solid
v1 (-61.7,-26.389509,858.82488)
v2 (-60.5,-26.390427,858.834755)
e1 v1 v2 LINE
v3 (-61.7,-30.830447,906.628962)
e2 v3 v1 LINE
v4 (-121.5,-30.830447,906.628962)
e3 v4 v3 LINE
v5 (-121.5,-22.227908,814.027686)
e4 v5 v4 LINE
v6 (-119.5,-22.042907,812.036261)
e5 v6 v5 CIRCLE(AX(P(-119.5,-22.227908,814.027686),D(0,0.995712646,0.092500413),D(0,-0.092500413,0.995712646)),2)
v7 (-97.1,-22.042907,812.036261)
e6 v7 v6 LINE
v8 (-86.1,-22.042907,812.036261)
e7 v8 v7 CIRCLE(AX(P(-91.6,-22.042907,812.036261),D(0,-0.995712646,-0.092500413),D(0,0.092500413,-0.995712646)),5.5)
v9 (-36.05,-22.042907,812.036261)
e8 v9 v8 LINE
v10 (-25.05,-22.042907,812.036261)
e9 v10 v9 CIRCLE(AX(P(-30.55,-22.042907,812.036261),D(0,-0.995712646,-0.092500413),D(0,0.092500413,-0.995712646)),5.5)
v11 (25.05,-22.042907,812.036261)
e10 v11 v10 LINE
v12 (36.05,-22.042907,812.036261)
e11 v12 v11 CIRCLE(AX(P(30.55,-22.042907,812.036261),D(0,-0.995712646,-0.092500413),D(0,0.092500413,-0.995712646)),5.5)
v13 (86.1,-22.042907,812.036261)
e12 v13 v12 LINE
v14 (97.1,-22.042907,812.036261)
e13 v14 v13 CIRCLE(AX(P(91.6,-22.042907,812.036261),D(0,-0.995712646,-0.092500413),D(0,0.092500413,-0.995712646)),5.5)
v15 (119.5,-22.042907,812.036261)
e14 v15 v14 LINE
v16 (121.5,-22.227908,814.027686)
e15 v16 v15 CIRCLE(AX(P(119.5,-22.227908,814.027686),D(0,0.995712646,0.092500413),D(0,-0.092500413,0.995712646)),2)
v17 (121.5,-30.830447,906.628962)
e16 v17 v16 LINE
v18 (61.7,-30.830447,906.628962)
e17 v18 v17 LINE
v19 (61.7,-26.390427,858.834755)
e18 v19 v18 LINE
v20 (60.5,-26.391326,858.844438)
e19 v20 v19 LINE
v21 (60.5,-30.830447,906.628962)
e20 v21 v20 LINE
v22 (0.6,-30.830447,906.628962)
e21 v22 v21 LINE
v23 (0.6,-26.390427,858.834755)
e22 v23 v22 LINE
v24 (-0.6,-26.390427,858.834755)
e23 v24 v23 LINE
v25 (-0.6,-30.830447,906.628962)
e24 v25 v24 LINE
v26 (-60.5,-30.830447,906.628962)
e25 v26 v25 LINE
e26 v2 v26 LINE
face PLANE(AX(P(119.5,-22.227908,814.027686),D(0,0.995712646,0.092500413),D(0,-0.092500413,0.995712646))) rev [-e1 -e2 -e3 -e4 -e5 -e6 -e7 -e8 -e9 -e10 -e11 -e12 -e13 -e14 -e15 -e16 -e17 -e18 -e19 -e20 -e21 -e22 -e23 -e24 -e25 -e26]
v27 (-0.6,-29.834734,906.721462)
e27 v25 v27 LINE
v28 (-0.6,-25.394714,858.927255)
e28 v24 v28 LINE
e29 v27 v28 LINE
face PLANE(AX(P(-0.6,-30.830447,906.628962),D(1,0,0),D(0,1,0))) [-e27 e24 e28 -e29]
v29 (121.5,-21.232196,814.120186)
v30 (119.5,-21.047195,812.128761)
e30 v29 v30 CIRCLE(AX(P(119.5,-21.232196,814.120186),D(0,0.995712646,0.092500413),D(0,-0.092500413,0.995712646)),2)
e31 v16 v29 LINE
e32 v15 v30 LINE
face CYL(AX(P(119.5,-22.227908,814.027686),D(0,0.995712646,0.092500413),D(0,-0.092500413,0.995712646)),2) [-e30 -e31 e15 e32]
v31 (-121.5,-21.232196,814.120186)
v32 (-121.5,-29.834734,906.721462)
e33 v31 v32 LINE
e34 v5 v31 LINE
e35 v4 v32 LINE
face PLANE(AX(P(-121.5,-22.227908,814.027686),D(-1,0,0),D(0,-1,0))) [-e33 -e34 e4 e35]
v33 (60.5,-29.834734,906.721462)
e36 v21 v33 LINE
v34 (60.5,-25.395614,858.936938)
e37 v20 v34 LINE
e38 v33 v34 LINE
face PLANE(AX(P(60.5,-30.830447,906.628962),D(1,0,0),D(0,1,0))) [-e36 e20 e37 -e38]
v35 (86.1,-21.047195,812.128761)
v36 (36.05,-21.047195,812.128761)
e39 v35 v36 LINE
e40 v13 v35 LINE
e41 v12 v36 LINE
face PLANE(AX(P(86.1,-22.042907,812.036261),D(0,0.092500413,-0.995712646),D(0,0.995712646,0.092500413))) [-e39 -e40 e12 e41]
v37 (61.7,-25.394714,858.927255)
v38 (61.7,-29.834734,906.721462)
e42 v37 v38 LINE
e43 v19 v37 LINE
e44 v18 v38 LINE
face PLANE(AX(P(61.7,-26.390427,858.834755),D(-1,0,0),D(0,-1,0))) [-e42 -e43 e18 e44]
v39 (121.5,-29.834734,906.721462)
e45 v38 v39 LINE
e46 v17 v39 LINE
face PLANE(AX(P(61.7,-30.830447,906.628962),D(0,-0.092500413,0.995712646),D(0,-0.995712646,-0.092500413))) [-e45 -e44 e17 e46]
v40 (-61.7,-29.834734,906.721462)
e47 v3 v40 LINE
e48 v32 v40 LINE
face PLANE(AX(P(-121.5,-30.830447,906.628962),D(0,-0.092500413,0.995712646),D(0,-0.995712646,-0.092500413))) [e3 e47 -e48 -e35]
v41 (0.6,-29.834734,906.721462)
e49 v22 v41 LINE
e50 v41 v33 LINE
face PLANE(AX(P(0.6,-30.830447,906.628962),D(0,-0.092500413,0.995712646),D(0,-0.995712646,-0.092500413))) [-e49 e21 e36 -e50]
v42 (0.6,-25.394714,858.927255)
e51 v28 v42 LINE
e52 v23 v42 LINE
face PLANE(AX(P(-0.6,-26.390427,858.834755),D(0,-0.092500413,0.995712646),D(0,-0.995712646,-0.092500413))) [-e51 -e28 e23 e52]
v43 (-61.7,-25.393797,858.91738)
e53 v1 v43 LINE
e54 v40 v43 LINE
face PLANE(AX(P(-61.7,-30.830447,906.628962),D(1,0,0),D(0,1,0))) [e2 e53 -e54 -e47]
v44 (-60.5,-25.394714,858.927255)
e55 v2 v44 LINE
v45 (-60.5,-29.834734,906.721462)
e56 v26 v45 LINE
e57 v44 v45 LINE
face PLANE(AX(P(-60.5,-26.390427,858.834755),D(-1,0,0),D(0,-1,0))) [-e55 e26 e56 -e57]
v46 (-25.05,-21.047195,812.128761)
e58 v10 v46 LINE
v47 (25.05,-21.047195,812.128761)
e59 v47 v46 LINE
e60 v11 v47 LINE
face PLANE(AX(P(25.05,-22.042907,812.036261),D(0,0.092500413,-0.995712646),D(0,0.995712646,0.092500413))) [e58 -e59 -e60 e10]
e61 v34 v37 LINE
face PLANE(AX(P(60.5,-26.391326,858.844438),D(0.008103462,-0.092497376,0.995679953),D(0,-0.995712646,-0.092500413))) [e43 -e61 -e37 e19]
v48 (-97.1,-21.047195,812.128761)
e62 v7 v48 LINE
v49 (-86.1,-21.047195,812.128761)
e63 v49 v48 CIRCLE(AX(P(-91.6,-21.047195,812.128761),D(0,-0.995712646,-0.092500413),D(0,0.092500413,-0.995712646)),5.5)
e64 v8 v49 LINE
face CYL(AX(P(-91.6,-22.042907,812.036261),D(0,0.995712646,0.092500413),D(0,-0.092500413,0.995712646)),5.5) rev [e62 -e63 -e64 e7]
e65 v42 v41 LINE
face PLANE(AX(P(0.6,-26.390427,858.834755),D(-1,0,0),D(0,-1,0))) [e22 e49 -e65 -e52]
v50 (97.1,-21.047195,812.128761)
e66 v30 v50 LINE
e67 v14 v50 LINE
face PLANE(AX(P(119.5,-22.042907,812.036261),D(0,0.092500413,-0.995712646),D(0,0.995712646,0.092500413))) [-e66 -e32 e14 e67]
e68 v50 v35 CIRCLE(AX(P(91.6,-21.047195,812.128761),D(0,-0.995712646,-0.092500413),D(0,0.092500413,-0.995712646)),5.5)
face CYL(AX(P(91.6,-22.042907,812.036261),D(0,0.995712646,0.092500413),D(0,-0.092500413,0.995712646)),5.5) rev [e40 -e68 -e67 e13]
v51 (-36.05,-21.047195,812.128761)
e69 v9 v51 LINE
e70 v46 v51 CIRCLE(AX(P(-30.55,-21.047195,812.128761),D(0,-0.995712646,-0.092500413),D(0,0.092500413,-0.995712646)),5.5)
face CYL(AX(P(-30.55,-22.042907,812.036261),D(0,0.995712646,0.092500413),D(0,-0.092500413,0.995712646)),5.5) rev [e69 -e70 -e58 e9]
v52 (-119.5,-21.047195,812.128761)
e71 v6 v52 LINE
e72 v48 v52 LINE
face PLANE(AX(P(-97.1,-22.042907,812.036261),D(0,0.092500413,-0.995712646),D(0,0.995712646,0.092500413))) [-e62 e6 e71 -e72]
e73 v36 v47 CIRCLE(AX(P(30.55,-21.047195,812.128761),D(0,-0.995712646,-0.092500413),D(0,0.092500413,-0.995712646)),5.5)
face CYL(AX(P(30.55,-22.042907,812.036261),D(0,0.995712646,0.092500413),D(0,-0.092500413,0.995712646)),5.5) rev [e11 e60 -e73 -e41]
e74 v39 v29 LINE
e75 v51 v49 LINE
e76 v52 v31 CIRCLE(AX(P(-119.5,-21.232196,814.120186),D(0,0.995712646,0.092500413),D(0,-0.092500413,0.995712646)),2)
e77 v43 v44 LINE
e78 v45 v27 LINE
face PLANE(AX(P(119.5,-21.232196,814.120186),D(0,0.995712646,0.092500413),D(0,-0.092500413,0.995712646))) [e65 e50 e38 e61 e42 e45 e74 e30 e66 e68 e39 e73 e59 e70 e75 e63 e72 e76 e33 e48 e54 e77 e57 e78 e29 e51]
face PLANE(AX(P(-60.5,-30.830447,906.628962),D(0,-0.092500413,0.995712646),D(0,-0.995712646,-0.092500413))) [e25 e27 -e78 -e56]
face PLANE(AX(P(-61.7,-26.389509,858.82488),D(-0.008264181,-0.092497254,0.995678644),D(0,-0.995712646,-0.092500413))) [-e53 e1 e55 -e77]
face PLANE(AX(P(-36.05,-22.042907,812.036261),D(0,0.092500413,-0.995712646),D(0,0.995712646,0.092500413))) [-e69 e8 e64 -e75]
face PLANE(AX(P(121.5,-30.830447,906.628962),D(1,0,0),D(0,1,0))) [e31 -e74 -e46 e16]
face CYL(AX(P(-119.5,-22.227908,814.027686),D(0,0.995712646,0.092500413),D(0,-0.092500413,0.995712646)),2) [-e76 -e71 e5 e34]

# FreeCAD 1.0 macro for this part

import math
import FreeCAD as App
import Part
import Sketcher
Q = App.Units.Quantity

doc = App.newDocument("Part")
body = doc.addObject("PartDesign::Body", "Body")

# Sketch on an angled plane
sketch1 = body.newObject("Sketcher::SketchObject", "Sketch")
sketch1.Placement = App.Placement(App.Vector(0, 53.933062, 5.010312), App.Rotation(App.Vector(-1, 0, 0), App.Vector(0, -0.092500413, 0.995712646), App.Vector(0, 0.995712646, 0.092500413), "ZXY"))
sketch1.addGeometry(Part.LineSegment(App.Vector(-121.5, 905.593752, 0), App.Vector(-121.5, 812.593752, 0)), False)
sketch1.addGeometry(Part.ArcOfCircle(Part.Circle(App.Vector(-119.5, 812.593752, 0), App.Vector(0, 0, 1), 2), math.radians(180), math.radians(270)), False)
sketch1.addGeometry(Part.LineSegment(App.Vector(-119.5, 810.593752, 0), App.Vector(-97.1, 810.593752, 0)), False)
sketch1.addGeometry(Part.ArcOfCircle(Part.Circle(App.Vector(-91.6, 810.593752, 0), App.Vector(0, 0, 1), 5.5), math.radians(0), math.radians(180)), False)
sketch1.addGeometry(Part.LineSegment(App.Vector(-86.1, 810.593752, 0), App.Vector(-36.05, 810.593752, 0)), False)
sketch1.addGeometry(Part.ArcOfCircle(Part.Circle(App.Vector(-30.55, 810.593752, 0), App.Vector(0, 0, 1), 5.5), math.radians(0), math.radians(180)), False)
sketch1.addGeometry(Part.LineSegment(App.Vector(-25.05, 810.593752, 0), App.Vector(25.05, 810.593752, 0)), False)
sketch1.addGeometry(Part.ArcOfCircle(Part.Circle(App.Vector(30.55, 810.593752, 0), App.Vector(0, 0, 1), 5.5), math.radians(0), math.radians(180)), False)
sketch1.addGeometry(Part.LineSegment(App.Vector(36.05, 810.593752, 0), App.Vector(86.1, 810.593752, 0)), False)
sketch1.addGeometry(Part.ArcOfCircle(Part.Circle(App.Vector(91.6, 810.593752, 0), App.Vector(0, 0, 1), 5.5), math.radians(0), math.radians(180)), False)
sketch1.addGeometry(Part.LineSegment(App.Vector(97.1, 810.593752, 0), App.Vector(119.5, 810.593752, 0)), False)
sketch1.addGeometry(Part.ArcOfCircle(Part.Circle(App.Vector(119.5, 812.593752, 0), App.Vector(0, 0, 1), 2), math.radians(-90), math.radians(0)), False)
sketch1.addGeometry(Part.LineSegment(App.Vector(121.5, 812.593752, 0), App.Vector(121.5, 905.593752, 0)), False)
sketch1.addGeometry(Part.LineSegment(App.Vector(121.5, 905.593752, 0), App.Vector(61.7, 905.593752, 0)), False)
sketch1.addGeometry(Part.LineSegment(App.Vector(61.7, 905.593752, 0), App.Vector(61.7, 857.583834, 0)), False)
sketch1.addGeometry(Part.LineSegment(App.Vector(61.7, 857.583834, 0), App.Vector(60.5, 857.593752, 0)), False)
sketch1.addGeometry(Part.LineSegment(App.Vector(60.5, 857.593752, 0), App.Vector(60.5, 905.593752, 0)), False)
sketch1.addGeometry(Part.LineSegment(App.Vector(60.5, 905.593752, 0), App.Vector(0.6, 905.593752, 0)), False)
sketch1.addGeometry(Part.LineSegment(App.Vector(0.6, 905.593752, 0), App.Vector(0.6, 857.593752, 0)), False)
sketch1.addGeometry(Part.LineSegment(App.Vector(0.6, 857.593752, 0), App.Vector(-0.6, 857.593752, 0)), False)
sketch1.addGeometry(Part.LineSegment(App.Vector(-0.6, 857.593752, 0), App.Vector(-0.6, 905.593752, 0)), False)
sketch1.addGeometry(Part.LineSegment(App.Vector(-0.6, 905.593752, 0), App.Vector(-60.5, 905.593752, 0)), False)
sketch1.addGeometry(Part.LineSegment(App.Vector(-60.5, 905.593752, 0), App.Vector(-60.5, 857.603476, 0)), False)
sketch1.addGeometry(Part.LineSegment(App.Vector(-60.5, 857.603476, 0), App.Vector(-61.7, 857.593752, 0)), False)
sketch1.addGeometry(Part.LineSegment(App.Vector(-61.7, 857.593752, 0), App.Vector(-61.7, 905.593752, 0)), False)
sketch1.addGeometry(Part.LineSegment(App.Vector(-61.7, 905.593752, 0), App.Vector(-121.5, 905.593752, 0)), False)
sketch1.addConstraint(Sketcher.Constraint("Coincident", 0, 2, 1, 1))
sketch1.addConstraint(Sketcher.Constraint("Coincident", 1, 2, 2, 1))
sketch1.addConstraint(Sketcher.Constraint("Coincident", 2, 2, 3, 2))
sketch1.addConstraint(Sketcher.Constraint("Coincident", 3, 1, 4, 1))
sketch1.addConstraint(Sketcher.Constraint("Coincident", 4, 2, 5, 2))
sketch1.addConstraint(Sketcher.Constraint("Coincident", 5, 1, 6, 1))
sketch1.addConstraint(Sketcher.Constraint("Coincident", 6, 2, 7, 2))
sketch1.addConstraint(Sketcher.Constraint("Coincident", 7, 1, 8, 1))
sketch1.addConstraint(Sketcher.Constraint("Coincident", 8, 2, 9, 2))
sketch1.addConstraint(Sketcher.Constraint("Coincident", 9, 1, 10, 1))
sketch1.addConstraint(Sketcher.Constraint("Coincident", 10, 2, 11, 1))
sketch1.addConstraint(Sketcher.Constraint("Coincident", 11, 2, 12, 1))
sketch1.addConstraint(Sketcher.Constraint("Coincident", 12, 2, 13, 1))
sketch1.addConstraint(Sketcher.Constraint("Coincident", 13, 2, 14, 1))
sketch1.addConstraint(Sketcher.Constraint("Coincident", 14, 2, 15, 1))
sketch1.addConstraint(Sketcher.Constraint("Coincident", 15, 2, 16, 1))
sketch1.addConstraint(Sketcher.Constraint("Coincident", 16, 2, 17, 1))
sketch1.addConstraint(Sketcher.Constraint("Coincident", 17, 2, 18, 1))
sketch1.addConstraint(Sketcher.Constraint("Coincident", 18, 2, 19, 1))
sketch1.addConstraint(Sketcher.Constraint("Coincident", 19, 2, 20, 1))
sketch1.addConstraint(Sketcher.Constraint("Coincident", 20, 2, 21, 1))
sketch1.addConstraint(Sketcher.Constraint("Coincident", 21, 2, 22, 1))
sketch1.addConstraint(Sketcher.Constraint("Coincident", 22, 2, 23, 1))
sketch1.addConstraint(Sketcher.Constraint("Coincident", 23, 2, 24, 1))
sketch1.addConstraint(Sketcher.Constraint("Coincident", 24, 2, 25, 1))
sketch1.addConstraint(Sketcher.Constraint("Coincident", 25, 2, 0, 1))
sketch1.addConstraint(Sketcher.Constraint("Vertical", 0))
sketch1.addConstraint(Sketcher.Constraint("Horizontal", 2))
sketch1.addConstraint(Sketcher.Constraint("Horizontal", 4))
sketch1.addConstraint(Sketcher.Constraint("Horizontal", 6))
sketch1.addConstraint(Sketcher.Constraint("Horizontal", 8))
sketch1.addConstraint(Sketcher.Constraint("Horizontal", 10))
sketch1.addConstraint(Sketcher.Constraint("Vertical", 12))
sketch1.addConstraint(Sketcher.Constraint("Horizontal", 13))
sketch1.addConstraint(Sketcher.Constraint("Vertical", 14))
sketch1.addConstraint(Sketcher.Constraint("Vertical", 16))
sketch1.addConstraint(Sketcher.Constraint("Horizontal", 17))
sketch1.addConstraint(Sketcher.Constraint("Vertical", 18))
sketch1.addConstraint(Sketcher.Constraint("Horizontal", 19))
sketch1.addConstraint(Sketcher.Constraint("Vertical", 20))
sketch1.addConstraint(Sketcher.Constraint("Horizontal", 21))
sketch1.addConstraint(Sketcher.Constraint("Vertical", 22))
sketch1.addConstraint(Sketcher.Constraint("Vertical", 24))
sketch1.addConstraint(Sketcher.Constraint("Horizontal", 25))
sketch1.addConstraint(Sketcher.Constraint("Radius", 1, Q("2 mm")))
sketch1.addConstraint(Sketcher.Constraint("Radius", 11, Q("2 mm")))
sketch1.addConstraint(Sketcher.Constraint("Radius", 3, Q("5.5 mm")))
sketch1.addConstraint(Sketcher.Constraint("Radius", 5, Q("5.5 mm")))
sketch1.addConstraint(Sketcher.Constraint("Radius", 7, Q("5.5 mm")))
sketch1.addConstraint(Sketcher.Constraint("Radius", 9, Q("5.5 mm")))
sketch1.addConstraint(Sketcher.Constraint("DistanceY", 0, 2, 0, 1, Q("93 mm")))
sketch1.addConstraint(Sketcher.Constraint("DistanceY", 12, 1, 12, 2, Q("93 mm")))
sketch1.addConstraint(Sketcher.Constraint("DistanceY", 16, 1, 16, 2, Q("48 mm")))
sketch1.addConstraint(Sketcher.Constraint("DistanceY", 18, 2, 18, 1, Q("48 mm")))
sketch1.addConstraint(Sketcher.Constraint("DistanceY", 20, 1, 20, 2, Q("48 mm")))
sketch1.addConstraint(Sketcher.Constraint("DistanceY", 24, 1, 24, 2, Q("48 mm")))
sketch1.addConstraint(Sketcher.Constraint("DistanceX", 2, 1, 2, 2, Q("22.4 mm")))
sketch1.addConstraint(Sketcher.Constraint("DistanceX", 6, 1, 6, 2, Q("50.1 mm")))
sketch1.addConstraint(Sketcher.Constraint("DistanceX", 10, 1, 10, 2, Q("22.4 mm")))
sketch1.addConstraint(Sketcher.Constraint("DistanceX", 13, 2, 13, 1, Q("59.8 mm")))
sketch1.addConstraint(Sketcher.Constraint("DistanceX", 17, 2, 17, 1, Q("59.9 mm")))
sketch1.addConstraint(Sketcher.Constraint("DistanceX", 19, 2, 19, 1, Q("1.2 mm")))
sketch1.addConstraint(Sketcher.Constraint("DistanceX", 21, 2, 21, 1, Q("59.9 mm")))
sketch1.addConstraint(Sketcher.Constraint("DistanceX", 25, 2, 25, 1, Q("59.8 mm")))
sketch1.addConstraint(Sketcher.Constraint("DistanceY", 3, 3, 1, 3, Q("2 mm")))
sketch1.addConstraint(Sketcher.Constraint("DistanceY", 5, 3, 1, 3, Q("2 mm")))
sketch1.addConstraint(Sketcher.Constraint("DistanceY", 7, 3, 1, 3, Q("2 mm")))
sketch1.addConstraint(Sketcher.Constraint("DistanceY", 9, 3, 1, 3, Q("2 mm")))
sketch1.addConstraint(Sketcher.Constraint("DistanceY", 9, 3, 11, 3, Q("2 mm")))
sketch1.addConstraint(Sketcher.Constraint("DistanceX", 1, 3, 11, 3, Q("239 mm")))
sketch1.addConstraint(Sketcher.Constraint("DistanceY", 3, 3, 0, 2, Q("2 mm")))
sketch1.addConstraint(Sketcher.Constraint("DistanceX", 0, 2, 1, 2, Q("2 mm")))
sketch1.addConstraint(Sketcher.Constraint("DistanceY", 3, 1, 1, 3, Q("2 mm")))
sketch1.addConstraint(Sketcher.Constraint("DistanceY", 8, 2, 11, 3, Q("2 mm")))
sketch1.addConstraint(Sketcher.Constraint("DistanceX", 10, 2, 11, 2, Q("2 mm")))
sketch1.addConstraint(Sketcher.Constraint("DistanceY", 10, 2, 11, 2, Q("2 mm")))
sketch1.addConstraint(Sketcher.Constraint("DistanceY", 15, 2, 13, 2, Q("48 mm")))
sketch1.addConstraint(Sketcher.Constraint("DistanceX", 16, 2, 12, 2, Q("61 mm")))
sketch1.addConstraint(Sketcher.Constraint("DistanceY", 6, 2, 17, 2, Q("95 mm")))
sketch1.addConstraint(Sketcher.Constraint("DistanceX", 4, 1, 4, 2, Q("50.05 mm")))
sketch1.addConstraint(Sketcher.Constraint("DistanceX", 1, 3, -1, 1, Q("119.5 mm")))
sketch1.addConstraint(Sketcher.Constraint("Distance", 15, Q("1.200041 mm")))
sketch1.addConstraint(Sketcher.Constraint("Distance", 23, Q("1.200039 mm")))
sketch1.addConstraint(Sketcher.Constraint("DistanceY", -1, 1, 1, 3, Q("812.593752 mm")))
pad1 = body.newObject("PartDesign::Pad", "Pad")
pad1.Profile = sketch1
pad1.Length = 1
pad1.Reversed = True

doc.recompute()
